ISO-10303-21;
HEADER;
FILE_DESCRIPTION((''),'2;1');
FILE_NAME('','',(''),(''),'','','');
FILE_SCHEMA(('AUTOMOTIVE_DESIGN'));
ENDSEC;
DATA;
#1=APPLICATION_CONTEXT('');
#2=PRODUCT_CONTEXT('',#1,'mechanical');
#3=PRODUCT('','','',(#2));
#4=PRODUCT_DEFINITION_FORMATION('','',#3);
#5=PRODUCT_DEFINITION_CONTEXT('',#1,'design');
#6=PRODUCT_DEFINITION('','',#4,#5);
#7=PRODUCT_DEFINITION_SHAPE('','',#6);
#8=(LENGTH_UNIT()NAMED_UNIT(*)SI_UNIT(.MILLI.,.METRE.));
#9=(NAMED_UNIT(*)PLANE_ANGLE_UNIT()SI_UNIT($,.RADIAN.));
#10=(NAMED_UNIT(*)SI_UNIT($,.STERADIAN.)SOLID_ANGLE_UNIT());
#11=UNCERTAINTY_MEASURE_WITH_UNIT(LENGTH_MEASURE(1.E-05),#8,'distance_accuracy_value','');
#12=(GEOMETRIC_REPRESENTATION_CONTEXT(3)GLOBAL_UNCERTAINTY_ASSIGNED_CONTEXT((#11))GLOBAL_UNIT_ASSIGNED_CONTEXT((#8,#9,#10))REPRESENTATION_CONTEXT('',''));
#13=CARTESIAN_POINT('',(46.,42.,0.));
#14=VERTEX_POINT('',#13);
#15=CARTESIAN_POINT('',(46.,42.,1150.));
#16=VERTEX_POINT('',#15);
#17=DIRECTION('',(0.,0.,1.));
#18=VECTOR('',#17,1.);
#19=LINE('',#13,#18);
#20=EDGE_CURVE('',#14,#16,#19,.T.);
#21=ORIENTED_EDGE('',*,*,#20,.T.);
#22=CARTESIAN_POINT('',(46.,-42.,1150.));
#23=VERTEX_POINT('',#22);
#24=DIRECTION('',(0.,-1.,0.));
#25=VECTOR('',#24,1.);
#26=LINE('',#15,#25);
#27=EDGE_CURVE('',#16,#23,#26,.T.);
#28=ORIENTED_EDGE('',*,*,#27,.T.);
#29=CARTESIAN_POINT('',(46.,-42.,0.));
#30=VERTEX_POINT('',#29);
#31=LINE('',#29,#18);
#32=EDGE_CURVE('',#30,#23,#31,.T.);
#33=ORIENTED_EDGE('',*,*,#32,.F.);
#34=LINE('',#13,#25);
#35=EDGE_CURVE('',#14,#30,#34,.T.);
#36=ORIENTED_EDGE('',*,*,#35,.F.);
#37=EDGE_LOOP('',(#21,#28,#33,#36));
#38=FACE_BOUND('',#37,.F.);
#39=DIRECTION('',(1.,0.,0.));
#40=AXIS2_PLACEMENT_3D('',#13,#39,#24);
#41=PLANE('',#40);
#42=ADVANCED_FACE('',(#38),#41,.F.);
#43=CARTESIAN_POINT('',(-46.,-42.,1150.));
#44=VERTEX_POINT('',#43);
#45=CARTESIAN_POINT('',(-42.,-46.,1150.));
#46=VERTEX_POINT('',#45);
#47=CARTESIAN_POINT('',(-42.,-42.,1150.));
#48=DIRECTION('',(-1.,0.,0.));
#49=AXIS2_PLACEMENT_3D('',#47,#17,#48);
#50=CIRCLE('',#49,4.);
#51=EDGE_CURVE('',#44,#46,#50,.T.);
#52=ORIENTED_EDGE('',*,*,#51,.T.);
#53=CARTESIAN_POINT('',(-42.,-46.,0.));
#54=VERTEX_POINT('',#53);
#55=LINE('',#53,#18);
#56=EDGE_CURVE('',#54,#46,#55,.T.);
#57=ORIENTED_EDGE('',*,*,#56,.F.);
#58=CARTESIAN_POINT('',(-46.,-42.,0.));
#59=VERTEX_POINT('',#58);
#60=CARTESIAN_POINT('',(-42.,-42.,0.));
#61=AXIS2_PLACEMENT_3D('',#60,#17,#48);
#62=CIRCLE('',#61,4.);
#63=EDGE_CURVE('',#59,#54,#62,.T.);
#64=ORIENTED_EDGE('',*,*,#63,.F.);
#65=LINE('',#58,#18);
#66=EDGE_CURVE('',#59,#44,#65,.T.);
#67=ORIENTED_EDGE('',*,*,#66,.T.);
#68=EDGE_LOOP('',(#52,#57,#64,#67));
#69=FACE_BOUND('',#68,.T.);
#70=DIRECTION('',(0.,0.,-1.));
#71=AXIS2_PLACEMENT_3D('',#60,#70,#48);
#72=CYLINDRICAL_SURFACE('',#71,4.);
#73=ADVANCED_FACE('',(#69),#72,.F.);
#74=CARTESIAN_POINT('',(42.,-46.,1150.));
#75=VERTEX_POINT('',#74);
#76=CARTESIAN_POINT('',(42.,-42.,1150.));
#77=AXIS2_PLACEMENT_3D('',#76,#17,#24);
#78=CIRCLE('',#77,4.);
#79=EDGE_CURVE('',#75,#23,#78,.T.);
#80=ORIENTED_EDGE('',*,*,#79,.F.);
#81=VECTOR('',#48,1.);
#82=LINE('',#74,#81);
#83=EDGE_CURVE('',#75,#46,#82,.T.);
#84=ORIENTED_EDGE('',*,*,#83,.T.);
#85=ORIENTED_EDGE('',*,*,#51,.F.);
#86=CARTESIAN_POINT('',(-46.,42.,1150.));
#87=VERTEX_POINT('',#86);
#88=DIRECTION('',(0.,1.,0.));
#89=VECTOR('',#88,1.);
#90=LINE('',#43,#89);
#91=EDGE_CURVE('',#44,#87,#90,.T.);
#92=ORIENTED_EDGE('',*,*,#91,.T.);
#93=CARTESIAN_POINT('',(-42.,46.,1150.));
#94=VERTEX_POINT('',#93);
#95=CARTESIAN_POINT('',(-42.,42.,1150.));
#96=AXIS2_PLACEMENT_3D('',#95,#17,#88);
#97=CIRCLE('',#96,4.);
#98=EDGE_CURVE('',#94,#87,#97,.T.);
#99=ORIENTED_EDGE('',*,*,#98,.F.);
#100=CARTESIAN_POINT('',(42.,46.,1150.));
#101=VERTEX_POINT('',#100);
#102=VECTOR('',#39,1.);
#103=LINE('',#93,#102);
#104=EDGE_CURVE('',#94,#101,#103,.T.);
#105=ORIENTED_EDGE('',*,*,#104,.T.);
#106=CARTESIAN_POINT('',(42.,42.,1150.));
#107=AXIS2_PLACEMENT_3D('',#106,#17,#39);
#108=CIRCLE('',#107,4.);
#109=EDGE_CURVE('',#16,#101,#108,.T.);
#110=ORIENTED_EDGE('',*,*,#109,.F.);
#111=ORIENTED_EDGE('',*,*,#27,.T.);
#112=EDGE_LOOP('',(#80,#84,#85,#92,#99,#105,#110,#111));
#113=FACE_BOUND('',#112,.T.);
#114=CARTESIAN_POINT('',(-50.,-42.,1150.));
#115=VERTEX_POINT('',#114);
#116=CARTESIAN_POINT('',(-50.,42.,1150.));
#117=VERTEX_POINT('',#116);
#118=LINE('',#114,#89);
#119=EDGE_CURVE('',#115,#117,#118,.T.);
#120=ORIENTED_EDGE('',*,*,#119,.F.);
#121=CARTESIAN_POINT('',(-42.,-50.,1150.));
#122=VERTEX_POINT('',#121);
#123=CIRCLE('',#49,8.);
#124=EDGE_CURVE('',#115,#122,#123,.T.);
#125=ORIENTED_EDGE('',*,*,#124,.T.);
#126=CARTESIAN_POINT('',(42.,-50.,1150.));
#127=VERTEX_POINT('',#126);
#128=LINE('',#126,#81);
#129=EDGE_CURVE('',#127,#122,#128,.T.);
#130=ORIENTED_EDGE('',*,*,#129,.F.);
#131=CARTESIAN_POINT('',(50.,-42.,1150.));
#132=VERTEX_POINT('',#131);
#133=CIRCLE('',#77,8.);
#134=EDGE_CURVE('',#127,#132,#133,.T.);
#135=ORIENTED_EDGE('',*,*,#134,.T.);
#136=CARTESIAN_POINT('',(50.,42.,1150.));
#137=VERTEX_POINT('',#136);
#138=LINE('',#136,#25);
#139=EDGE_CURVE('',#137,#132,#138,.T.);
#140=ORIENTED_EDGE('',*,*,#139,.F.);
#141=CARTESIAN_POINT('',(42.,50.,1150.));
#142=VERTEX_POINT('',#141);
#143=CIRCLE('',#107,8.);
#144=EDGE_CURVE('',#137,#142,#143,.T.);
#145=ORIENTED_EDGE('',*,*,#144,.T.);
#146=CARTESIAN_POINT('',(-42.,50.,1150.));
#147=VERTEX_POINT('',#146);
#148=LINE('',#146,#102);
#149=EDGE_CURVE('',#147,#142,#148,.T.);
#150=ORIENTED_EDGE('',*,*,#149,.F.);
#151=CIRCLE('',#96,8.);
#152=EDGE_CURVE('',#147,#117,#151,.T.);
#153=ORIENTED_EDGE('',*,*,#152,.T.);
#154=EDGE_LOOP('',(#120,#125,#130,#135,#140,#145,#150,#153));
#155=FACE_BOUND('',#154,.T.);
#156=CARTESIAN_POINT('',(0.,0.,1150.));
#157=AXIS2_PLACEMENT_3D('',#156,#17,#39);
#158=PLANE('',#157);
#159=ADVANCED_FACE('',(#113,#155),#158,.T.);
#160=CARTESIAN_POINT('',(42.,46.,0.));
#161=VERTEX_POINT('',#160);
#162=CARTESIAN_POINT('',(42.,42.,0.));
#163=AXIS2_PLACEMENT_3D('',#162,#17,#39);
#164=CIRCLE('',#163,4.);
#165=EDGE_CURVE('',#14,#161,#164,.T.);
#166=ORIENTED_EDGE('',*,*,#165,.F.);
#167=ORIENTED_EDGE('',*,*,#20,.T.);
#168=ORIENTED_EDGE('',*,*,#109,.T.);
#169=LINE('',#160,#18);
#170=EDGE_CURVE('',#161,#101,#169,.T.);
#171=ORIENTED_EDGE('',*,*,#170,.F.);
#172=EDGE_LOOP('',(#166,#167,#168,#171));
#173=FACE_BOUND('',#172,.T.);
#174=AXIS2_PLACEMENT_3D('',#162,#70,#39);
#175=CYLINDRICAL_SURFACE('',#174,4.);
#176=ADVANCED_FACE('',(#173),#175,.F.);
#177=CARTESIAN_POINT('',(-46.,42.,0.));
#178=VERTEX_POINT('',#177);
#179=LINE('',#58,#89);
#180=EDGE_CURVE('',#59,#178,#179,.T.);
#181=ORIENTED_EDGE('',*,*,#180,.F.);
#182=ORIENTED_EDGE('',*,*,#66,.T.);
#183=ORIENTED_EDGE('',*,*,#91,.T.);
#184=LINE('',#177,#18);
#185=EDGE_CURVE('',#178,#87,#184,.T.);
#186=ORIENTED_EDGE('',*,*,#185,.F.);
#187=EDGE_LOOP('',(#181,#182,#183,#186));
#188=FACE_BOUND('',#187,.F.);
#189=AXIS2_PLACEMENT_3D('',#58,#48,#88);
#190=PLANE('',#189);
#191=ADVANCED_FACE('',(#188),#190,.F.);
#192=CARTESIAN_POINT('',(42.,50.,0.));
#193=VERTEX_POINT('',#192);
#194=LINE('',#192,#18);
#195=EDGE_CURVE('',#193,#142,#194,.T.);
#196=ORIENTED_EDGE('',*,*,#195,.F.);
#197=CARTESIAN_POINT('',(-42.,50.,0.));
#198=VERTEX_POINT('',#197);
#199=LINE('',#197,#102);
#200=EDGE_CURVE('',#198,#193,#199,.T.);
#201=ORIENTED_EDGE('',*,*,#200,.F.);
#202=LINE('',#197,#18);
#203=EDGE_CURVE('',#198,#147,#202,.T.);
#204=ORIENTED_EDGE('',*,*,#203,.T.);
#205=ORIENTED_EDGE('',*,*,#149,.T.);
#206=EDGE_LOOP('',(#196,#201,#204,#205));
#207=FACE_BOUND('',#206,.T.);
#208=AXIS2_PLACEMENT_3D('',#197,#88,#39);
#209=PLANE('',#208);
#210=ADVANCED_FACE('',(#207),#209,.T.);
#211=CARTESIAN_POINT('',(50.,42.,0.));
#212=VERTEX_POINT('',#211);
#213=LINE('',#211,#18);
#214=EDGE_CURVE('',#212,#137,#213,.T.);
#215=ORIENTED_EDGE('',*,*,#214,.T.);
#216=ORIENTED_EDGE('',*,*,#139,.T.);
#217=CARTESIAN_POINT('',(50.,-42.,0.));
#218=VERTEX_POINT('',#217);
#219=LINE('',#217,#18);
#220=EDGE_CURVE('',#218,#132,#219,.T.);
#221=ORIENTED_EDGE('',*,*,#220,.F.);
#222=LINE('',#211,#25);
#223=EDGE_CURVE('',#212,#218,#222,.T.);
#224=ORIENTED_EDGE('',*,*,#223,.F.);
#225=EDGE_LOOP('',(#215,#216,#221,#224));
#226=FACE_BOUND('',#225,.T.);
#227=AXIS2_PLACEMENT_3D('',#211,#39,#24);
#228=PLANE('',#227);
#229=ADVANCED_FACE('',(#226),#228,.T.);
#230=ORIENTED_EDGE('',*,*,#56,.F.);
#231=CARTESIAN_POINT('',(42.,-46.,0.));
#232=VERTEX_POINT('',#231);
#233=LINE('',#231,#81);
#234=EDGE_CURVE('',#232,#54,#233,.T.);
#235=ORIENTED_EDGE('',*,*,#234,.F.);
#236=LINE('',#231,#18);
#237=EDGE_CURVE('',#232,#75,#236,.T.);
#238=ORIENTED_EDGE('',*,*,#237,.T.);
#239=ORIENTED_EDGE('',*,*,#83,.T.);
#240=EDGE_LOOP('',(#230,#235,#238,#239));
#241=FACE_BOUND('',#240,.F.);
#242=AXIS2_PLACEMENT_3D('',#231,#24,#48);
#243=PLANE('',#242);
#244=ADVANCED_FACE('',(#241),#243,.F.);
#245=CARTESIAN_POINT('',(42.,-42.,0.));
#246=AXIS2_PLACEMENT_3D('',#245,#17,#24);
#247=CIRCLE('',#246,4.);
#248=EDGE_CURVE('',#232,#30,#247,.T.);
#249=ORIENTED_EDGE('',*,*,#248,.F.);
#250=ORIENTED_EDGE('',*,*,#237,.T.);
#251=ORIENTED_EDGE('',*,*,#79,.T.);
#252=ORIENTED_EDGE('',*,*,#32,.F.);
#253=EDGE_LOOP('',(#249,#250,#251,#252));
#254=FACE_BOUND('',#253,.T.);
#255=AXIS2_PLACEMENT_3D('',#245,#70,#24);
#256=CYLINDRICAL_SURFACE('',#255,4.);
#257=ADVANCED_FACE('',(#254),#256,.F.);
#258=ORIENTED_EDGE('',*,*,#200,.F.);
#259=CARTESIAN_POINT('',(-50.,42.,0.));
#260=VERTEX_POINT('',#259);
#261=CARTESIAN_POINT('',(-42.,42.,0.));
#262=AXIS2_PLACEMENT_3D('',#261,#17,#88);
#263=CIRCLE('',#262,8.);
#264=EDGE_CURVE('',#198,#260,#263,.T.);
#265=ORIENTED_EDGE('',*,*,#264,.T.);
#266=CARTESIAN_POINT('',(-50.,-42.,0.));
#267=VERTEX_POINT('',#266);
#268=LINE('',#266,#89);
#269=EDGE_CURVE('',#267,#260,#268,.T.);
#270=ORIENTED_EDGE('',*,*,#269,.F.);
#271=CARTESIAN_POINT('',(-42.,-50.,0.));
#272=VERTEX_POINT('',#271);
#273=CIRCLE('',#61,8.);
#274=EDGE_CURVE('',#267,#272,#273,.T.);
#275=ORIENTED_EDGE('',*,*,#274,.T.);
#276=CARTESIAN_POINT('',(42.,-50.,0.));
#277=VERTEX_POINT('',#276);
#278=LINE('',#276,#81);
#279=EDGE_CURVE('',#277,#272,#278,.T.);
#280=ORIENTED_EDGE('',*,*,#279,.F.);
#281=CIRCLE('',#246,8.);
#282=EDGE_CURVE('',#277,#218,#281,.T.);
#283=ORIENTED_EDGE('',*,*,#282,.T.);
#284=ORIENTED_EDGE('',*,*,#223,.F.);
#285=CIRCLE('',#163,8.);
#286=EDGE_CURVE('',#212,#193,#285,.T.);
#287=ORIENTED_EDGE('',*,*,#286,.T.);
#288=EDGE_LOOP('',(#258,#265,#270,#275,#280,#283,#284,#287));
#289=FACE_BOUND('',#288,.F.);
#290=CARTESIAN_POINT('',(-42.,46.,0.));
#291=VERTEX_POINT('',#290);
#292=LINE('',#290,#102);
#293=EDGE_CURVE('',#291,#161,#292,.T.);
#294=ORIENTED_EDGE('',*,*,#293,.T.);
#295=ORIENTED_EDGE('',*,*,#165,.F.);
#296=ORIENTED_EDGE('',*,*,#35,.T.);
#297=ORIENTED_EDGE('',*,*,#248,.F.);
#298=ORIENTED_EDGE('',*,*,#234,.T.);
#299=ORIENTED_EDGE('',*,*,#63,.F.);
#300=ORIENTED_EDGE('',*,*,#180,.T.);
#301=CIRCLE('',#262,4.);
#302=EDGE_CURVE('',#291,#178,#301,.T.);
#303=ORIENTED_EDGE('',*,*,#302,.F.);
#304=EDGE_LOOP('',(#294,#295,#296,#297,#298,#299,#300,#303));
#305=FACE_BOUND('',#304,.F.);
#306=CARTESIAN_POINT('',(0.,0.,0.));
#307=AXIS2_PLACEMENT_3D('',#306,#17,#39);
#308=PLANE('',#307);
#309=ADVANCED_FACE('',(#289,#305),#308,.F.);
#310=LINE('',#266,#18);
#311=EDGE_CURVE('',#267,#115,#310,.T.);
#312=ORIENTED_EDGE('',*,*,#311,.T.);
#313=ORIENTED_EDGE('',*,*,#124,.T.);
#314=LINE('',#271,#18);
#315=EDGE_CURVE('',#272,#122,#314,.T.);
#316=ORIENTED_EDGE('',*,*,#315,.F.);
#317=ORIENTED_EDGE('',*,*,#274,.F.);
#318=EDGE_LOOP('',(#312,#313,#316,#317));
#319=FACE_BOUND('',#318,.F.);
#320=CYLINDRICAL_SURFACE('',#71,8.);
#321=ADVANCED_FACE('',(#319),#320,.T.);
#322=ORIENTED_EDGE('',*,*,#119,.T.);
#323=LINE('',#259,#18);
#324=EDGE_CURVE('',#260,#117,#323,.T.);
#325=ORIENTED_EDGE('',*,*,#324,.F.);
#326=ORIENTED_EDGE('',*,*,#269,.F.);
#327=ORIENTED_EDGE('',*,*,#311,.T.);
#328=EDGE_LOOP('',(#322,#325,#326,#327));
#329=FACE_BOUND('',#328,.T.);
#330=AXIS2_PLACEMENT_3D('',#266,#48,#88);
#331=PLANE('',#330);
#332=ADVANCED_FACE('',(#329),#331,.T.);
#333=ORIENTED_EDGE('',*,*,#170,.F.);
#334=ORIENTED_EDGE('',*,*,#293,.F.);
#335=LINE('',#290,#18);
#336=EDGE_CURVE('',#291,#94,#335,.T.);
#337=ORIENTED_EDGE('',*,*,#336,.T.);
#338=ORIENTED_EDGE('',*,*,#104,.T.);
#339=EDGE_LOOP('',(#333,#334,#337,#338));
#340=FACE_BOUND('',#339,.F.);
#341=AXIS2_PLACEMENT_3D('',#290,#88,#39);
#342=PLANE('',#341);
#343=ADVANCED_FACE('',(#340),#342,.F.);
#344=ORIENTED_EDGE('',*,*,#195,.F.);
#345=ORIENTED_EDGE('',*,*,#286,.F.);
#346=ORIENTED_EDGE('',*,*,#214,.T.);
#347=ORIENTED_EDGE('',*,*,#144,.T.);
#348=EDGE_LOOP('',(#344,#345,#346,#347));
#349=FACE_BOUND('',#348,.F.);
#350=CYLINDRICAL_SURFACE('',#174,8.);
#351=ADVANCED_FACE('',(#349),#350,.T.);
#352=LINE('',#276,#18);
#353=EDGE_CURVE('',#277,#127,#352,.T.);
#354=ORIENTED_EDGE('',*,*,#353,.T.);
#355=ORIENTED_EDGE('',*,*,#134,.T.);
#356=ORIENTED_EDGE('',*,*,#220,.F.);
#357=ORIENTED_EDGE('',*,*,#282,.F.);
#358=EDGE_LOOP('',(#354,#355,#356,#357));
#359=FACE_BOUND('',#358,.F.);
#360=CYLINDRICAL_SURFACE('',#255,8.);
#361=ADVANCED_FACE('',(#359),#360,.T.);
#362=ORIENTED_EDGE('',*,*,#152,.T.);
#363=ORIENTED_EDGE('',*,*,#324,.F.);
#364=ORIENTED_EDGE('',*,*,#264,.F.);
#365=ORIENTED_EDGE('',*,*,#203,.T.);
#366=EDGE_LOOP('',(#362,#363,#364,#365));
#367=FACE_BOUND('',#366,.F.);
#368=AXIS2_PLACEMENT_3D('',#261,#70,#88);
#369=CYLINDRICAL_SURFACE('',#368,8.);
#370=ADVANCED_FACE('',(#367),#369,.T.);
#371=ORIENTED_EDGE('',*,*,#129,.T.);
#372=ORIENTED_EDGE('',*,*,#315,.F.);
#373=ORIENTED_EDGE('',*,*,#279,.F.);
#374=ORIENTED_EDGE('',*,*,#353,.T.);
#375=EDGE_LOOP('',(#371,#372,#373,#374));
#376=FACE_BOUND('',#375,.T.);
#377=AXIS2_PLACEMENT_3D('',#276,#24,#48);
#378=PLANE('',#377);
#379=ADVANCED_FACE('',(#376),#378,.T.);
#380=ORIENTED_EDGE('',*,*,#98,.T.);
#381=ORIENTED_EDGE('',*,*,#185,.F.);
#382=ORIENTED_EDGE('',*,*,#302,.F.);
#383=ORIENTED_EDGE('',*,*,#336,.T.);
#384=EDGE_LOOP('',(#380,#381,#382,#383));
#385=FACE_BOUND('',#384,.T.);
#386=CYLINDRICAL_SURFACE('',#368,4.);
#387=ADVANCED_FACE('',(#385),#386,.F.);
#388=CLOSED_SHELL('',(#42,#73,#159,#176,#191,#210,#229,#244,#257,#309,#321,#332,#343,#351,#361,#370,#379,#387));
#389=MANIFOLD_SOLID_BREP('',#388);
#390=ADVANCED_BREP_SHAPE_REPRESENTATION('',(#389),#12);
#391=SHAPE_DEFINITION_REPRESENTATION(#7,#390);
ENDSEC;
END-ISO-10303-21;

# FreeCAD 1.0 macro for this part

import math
import FreeCAD as App
import Part
import Sketcher
from FreeCAD import Vector
Q = App.Units.Quantity

doc = App.newDocument("Part")
params = doc.addObject("Spreadsheet::Sheet", "Params")
for row, (alias, value) in enumerate([
    ("sketch1_radius", "8 mm"),
    ("sketch1_radius2", "4 mm"),
    ("pad1_length", "1150 mm"),
], start=1):
    params.set(f"A{row}", alias)
    params.set(f"B{row}", "=" + value)
    params.setAlias(f"B{row}", alias)

body = doc.addObject("PartDesign::Body", "Body")

# Sketch on XY plane
sketch1 = body.newObject("Sketcher::SketchObject", "Sketch")
sketch1.AttachmentSupport = (doc.getObject("XY_Plane"), [""])
sketch1.MapMode = "FlatFace"
sketch1.addGeometry([
    Part.LineSegment(Vector(-50, 42, 0), Vector(-50, -42, 0)),  # 0
    Part.ArcOfCircle(Part.Circle(Vector(-42, -42, 0), Vector(0, 0, 1), 8), math.radians(180), math.radians(270)),  # 1
    Part.LineSegment(Vector(-42, -50, 0), Vector(42, -50, 0)),  # 2
    Part.ArcOfCircle(Part.Circle(Vector(42, -42, 0), Vector(0, 0, 1), 8), math.radians(-90), math.radians(0)),  # 3
    Part.LineSegment(Vector(50, -42, 0), Vector(50, 42, 0)),  # 4
    Part.ArcOfCircle(Part.Circle(Vector(42, 42, 0), Vector(0, 0, 1), 8), math.radians(0), math.radians(90)),  # 5
    Part.LineSegment(Vector(42, 50, 0), Vector(-42, 50, 0)),  # 6
    Part.ArcOfCircle(Part.Circle(Vector(-42, 42, 0), Vector(0, 0, 1), 8), math.radians(90), math.radians(180)),  # 7
    Part.ArcOfCircle(Part.Circle(Vector(-42, 42, 0), Vector(0, 0, 1), 4), math.radians(90), math.radians(180)),  # 8
    Part.LineSegment(Vector(-42, 46, 0), Vector(42, 46, 0)),  # 9
    Part.ArcOfCircle(Part.Circle(Vector(42, 42, 0), Vector(0, 0, 1), 4), math.radians(0), math.radians(90)),  # 10
    Part.LineSegment(Vector(46, 42, 0), Vector(46, -42, 0)),  # 11
    Part.ArcOfCircle(Part.Circle(Vector(42, -42, 0), Vector(0, 0, 1), 4), math.radians(-90), math.radians(0)),  # 12
    Part.LineSegment(Vector(42, -46, 0), Vector(-42, -46, 0)),  # 13
    Part.ArcOfCircle(Part.Circle(Vector(-42, -42, 0), Vector(0, 0, 1), 4), math.radians(180), math.radians(270)),  # 14
    Part.LineSegment(Vector(-46, -42, 0), Vector(-46, 42, 0)),  # 15
], False)
sketch1.addConstraint([
    Sketcher.Constraint("Tangent", 0, 2, 1, 1),
    Sketcher.Constraint("Tangent", 1, 2, 2, 1),
    Sketcher.Constraint("Tangent", 2, 2, 3, 1),
    Sketcher.Constraint("Tangent", 3, 2, 4, 1),
    Sketcher.Constraint("Tangent", 4, 2, 5, 1),
    Sketcher.Constraint("Tangent", 5, 2, 6, 1),
    Sketcher.Constraint("Tangent", 6, 2, 7, 1),
    Sketcher.Constraint("Tangent", 7, 2, 0, 1),
    Sketcher.Constraint("Tangent", 8, 1, 9, 1),
    Sketcher.Constraint("Tangent", 9, 2, 10, 2),
    Sketcher.Constraint("Tangent", 10, 1, 11, 1),
    Sketcher.Constraint("Tangent", 11, 2, 12, 2),
    Sketcher.Constraint("Tangent", 12, 1, 13, 1),
    Sketcher.Constraint("Tangent", 13, 2, 14, 2),
    Sketcher.Constraint("Tangent", 14, 1, 15, 1),
    Sketcher.Constraint("Tangent", 15, 2, 8, 2),
    Sketcher.Constraint("Vertical", 0),
    Sketcher.Constraint("Horizontal", 2),
    Sketcher.Constraint("Vertical", 4),
    Sketcher.Constraint("Horizontal", 6),
    Sketcher.Constraint("Horizontal", 9),
    Sketcher.Constraint("Vertical", 11),
    Sketcher.Constraint("Horizontal", 13),
    Sketcher.Constraint("Vertical", 15),
    Sketcher.Constraint("Coincident", 8, 3, 7, 3),
    Sketcher.Constraint("Coincident", 10, 3, 5, 3),
    Sketcher.Constraint("Coincident", 12, 3, 3, 3),
    Sketcher.Constraint("Equal", 1, 3),
    Sketcher.Constraint("Equal", 3, 5),
    Sketcher.Constraint("Equal", 5, 7),
    Sketcher.Constraint("Equal", 12, 14),
    Sketcher.Constraint("Symmetric", 1, 3, 5, 3, -1, 1),
    Sketcher.Constraint("Equal", 13, 0),
    Sketcher.Constraint("Radius", 1, Q("8 mm")),
    Sketcher.Constraint("Radius", 8, Q("4 mm")),
    Sketcher.Constraint("DistanceX", 0, 2, -1, 1, Q("50 mm")),
])
sketch1.setExpression("Constraints[33]", "Params.sketch1_radius")
sketch1.setExpression("Constraints[34]", "Params.sketch1_radius2")
pad1 = body.newObject("PartDesign::Pad", "Pad")
pad1.Profile = sketch1
pad1.setExpression("Length", "Params.pad1_length")

doc.recompute()
